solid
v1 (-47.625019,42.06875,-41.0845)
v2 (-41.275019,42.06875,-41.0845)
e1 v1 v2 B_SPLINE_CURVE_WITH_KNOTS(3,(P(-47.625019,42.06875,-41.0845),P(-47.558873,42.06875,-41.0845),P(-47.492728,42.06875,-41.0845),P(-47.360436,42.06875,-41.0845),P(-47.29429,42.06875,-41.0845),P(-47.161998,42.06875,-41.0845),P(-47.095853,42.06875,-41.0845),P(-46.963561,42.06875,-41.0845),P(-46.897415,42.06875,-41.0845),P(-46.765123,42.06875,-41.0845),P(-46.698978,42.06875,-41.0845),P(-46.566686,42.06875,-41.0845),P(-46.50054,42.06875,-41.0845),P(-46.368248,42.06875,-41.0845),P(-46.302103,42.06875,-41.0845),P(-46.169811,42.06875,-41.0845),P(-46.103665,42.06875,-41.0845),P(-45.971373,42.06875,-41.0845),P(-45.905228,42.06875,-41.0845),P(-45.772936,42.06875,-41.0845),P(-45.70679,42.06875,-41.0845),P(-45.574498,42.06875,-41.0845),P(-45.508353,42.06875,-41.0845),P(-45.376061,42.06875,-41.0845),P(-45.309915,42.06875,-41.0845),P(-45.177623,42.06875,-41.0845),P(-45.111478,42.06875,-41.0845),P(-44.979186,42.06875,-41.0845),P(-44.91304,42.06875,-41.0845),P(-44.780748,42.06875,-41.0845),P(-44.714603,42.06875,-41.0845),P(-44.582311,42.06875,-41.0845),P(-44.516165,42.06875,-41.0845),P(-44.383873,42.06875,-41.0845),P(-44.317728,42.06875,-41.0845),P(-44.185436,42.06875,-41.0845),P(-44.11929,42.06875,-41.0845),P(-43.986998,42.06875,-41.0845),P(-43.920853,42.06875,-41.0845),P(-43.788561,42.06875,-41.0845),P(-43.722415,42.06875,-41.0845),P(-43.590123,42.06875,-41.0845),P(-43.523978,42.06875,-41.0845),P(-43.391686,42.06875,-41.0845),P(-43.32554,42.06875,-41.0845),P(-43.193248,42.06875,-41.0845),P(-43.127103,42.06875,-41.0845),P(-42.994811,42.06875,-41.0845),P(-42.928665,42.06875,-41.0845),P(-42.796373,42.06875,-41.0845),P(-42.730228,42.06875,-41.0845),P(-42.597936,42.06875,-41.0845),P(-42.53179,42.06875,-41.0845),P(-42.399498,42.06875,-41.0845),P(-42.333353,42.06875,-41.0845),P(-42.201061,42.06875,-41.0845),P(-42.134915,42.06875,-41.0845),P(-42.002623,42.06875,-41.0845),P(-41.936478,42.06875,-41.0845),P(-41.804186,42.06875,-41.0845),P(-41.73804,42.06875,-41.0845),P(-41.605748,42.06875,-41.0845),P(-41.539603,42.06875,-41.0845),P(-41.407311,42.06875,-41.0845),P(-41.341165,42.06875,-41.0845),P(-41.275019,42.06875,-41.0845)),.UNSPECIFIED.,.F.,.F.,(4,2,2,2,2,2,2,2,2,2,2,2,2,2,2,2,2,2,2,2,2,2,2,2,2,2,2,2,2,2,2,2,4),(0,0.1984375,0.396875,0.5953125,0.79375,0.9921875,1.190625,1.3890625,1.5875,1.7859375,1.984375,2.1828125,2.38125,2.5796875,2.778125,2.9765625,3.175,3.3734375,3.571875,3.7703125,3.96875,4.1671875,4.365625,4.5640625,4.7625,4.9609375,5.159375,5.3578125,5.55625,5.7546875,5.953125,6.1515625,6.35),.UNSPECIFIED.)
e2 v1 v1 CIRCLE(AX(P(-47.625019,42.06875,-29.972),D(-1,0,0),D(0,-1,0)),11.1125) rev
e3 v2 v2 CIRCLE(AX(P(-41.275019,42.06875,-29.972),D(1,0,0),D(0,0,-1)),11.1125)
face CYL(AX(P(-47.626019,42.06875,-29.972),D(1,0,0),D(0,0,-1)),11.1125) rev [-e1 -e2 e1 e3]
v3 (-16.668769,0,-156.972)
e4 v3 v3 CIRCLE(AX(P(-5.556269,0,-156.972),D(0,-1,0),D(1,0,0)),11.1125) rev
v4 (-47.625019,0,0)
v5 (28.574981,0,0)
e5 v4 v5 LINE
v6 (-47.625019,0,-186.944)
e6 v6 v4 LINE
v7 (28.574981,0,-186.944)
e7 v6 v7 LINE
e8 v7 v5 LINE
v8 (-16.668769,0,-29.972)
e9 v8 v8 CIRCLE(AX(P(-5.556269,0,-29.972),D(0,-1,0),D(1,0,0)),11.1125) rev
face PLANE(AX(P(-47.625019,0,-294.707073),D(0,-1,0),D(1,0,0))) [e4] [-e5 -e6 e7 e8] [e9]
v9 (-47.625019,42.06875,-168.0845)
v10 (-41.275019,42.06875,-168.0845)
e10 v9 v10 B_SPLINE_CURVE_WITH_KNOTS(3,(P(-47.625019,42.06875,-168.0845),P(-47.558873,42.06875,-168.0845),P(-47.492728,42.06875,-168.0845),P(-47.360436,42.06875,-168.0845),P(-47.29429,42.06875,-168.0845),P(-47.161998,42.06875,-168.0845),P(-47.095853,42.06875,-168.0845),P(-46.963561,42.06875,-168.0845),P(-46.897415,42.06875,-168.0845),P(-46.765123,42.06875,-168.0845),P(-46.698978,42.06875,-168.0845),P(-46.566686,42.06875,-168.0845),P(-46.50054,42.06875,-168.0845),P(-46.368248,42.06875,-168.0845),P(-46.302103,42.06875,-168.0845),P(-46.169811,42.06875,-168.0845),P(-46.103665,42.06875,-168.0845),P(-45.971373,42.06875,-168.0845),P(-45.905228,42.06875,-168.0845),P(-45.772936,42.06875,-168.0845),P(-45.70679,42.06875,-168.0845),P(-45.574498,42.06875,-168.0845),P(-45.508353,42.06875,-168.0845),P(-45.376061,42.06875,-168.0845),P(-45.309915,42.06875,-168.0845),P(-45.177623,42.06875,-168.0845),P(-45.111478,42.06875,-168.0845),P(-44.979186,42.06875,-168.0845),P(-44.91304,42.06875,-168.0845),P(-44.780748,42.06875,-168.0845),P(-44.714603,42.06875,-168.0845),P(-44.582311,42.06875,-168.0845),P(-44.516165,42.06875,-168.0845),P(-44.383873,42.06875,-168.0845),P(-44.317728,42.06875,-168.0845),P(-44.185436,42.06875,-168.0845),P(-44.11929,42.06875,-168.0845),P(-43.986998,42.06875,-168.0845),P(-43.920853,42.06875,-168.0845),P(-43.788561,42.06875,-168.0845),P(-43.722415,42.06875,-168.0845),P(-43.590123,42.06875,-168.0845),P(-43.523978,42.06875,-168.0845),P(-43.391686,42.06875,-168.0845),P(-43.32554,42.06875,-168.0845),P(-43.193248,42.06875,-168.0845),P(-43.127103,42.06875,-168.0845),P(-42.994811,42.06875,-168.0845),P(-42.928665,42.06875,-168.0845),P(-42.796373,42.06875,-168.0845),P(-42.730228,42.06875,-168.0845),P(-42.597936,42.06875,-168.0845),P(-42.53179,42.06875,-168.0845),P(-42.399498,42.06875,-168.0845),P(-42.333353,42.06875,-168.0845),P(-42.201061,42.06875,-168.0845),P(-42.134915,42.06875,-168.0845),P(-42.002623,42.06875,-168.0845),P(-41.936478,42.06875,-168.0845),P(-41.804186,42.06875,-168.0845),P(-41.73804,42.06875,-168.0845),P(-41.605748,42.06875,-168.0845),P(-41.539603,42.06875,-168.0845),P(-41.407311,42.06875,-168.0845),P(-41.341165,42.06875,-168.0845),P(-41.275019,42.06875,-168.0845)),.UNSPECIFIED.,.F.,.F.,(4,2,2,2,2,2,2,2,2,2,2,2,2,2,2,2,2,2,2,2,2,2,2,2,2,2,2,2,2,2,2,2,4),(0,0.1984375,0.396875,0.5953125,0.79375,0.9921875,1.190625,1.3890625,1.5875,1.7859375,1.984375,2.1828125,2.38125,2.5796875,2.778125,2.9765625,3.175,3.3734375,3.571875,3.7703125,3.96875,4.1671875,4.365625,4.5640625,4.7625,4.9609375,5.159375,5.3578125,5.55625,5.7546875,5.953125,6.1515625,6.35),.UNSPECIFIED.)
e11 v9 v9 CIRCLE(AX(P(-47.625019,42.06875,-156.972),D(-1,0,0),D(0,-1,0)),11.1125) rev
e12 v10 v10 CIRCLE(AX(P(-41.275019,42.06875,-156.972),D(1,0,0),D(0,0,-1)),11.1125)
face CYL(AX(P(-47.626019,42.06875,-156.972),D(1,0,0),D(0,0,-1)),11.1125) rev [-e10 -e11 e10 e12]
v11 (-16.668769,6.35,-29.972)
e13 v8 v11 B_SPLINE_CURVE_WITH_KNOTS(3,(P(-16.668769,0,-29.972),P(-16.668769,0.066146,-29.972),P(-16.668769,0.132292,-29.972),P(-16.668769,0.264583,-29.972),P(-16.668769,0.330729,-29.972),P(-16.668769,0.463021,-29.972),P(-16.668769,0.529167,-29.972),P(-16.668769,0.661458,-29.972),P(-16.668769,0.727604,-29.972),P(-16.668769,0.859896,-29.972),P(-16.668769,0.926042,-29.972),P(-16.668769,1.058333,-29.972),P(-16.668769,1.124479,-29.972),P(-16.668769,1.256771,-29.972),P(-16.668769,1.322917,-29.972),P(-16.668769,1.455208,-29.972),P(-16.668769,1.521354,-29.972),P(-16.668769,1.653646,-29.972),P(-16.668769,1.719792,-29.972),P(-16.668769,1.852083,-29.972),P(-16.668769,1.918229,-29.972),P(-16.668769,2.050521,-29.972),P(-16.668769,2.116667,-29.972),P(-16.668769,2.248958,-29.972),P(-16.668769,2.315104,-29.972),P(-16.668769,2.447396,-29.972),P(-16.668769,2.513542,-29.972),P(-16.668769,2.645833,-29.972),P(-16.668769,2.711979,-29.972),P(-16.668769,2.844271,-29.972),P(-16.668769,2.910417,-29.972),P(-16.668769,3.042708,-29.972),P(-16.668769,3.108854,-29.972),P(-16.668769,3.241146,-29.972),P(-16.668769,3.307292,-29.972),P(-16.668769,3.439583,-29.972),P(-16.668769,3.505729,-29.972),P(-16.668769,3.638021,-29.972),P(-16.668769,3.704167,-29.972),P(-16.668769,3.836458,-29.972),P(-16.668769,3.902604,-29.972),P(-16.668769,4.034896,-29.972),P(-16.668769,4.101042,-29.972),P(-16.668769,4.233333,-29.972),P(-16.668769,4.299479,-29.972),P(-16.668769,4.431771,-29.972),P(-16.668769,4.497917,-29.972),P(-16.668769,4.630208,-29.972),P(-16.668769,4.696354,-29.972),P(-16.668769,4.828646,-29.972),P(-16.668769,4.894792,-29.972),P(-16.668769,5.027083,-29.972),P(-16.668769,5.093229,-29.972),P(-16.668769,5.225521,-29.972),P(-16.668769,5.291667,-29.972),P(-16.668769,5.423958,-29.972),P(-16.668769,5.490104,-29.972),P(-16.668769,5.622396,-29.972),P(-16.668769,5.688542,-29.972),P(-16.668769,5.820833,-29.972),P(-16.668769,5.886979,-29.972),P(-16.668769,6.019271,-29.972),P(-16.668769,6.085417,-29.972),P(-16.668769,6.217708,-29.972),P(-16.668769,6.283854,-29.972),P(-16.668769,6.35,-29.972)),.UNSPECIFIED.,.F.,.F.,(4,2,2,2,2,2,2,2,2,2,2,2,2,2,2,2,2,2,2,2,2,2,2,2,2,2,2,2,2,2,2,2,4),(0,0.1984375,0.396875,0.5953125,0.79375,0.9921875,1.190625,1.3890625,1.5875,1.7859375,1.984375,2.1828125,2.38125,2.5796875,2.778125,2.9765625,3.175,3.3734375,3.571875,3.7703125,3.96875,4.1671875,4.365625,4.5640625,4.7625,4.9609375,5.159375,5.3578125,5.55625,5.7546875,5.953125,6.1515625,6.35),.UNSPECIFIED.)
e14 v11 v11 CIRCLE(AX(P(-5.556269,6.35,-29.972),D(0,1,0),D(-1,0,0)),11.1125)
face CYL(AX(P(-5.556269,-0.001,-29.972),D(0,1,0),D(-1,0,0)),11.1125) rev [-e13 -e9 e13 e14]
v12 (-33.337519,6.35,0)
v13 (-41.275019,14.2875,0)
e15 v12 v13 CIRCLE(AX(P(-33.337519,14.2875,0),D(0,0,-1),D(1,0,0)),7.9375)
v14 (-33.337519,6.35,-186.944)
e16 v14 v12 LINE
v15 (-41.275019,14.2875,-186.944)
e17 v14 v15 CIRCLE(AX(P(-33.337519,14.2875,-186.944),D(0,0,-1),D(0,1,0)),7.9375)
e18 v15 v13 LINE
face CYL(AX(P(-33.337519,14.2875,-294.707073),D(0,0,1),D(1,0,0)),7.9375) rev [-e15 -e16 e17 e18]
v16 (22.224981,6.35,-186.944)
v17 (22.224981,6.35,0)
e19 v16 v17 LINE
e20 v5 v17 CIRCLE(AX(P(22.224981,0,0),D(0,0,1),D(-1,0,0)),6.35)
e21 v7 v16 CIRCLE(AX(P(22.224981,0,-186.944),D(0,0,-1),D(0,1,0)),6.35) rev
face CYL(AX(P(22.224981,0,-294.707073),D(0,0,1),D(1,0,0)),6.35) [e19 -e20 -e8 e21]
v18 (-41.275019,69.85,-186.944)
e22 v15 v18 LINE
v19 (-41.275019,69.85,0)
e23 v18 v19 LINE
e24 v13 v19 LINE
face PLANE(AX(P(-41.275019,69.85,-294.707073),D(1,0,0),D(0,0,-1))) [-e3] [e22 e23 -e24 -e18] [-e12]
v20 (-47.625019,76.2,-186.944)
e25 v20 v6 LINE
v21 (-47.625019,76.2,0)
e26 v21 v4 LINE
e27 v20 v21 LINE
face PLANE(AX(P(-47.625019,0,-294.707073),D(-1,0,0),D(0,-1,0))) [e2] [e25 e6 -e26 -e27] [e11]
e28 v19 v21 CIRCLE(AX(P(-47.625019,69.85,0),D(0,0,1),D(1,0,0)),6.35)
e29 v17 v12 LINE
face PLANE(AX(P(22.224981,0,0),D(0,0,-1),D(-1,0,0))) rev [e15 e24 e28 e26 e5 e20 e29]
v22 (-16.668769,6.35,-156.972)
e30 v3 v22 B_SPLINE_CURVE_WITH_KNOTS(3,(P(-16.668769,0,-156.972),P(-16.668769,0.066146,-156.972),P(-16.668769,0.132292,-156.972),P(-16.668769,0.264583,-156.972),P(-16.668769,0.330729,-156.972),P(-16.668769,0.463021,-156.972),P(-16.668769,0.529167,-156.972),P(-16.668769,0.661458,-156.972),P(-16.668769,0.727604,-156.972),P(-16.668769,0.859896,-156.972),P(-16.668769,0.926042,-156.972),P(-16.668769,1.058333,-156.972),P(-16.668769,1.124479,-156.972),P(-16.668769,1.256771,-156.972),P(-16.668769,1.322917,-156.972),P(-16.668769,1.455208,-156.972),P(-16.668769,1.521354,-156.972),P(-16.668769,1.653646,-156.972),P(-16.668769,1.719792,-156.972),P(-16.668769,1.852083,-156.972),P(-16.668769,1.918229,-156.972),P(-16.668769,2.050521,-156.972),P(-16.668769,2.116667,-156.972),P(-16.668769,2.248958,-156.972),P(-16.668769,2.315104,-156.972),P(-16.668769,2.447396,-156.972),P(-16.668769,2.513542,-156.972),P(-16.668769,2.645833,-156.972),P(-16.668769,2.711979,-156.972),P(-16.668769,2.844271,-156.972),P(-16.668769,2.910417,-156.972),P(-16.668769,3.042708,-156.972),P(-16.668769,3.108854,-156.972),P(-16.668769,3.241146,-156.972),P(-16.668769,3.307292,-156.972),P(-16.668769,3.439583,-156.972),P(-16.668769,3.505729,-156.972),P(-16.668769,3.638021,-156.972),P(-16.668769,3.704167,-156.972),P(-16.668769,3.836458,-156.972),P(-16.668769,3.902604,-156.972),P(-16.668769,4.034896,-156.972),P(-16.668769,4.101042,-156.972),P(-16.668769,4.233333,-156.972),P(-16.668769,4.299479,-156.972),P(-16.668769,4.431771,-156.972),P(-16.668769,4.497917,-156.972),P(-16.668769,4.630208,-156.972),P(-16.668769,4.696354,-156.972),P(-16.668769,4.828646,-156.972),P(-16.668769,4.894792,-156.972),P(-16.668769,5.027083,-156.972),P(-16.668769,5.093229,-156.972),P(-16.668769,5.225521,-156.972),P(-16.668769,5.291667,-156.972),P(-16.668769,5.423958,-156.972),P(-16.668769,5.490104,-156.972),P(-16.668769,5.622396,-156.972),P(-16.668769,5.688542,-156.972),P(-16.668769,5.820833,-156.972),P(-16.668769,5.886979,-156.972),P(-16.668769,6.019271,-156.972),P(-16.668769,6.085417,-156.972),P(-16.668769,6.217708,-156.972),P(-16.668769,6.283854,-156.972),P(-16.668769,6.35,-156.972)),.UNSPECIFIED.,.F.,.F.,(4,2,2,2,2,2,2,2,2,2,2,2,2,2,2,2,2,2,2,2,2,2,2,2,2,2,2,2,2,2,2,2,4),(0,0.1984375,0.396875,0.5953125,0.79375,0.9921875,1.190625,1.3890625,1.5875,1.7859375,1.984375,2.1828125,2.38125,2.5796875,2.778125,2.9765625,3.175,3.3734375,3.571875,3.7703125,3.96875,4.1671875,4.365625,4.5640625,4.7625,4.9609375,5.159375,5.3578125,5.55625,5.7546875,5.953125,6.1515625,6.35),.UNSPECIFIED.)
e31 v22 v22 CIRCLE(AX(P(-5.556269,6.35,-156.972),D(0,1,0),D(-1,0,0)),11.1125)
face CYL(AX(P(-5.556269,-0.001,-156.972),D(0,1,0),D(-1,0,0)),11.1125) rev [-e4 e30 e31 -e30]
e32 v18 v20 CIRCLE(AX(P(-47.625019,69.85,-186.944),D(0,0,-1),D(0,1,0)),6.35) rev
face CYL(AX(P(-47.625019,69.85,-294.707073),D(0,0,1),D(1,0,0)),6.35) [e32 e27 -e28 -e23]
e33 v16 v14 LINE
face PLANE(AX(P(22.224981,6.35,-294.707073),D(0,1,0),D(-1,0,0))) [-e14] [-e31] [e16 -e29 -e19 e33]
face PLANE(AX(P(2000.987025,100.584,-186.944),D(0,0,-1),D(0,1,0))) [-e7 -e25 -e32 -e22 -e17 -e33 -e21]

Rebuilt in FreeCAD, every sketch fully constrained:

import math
import FreeCAD as App
import Part
import Sketcher
Q = App.Units.Quantity

doc = App.newDocument("Part")
params = doc.addObject("Spreadsheet::Sheet", "Params")
for row, (alias, value) in enumerate([
    ("sketch1_width", "3 in"),
    ("sketch1_radius", "0.25 in"),
    ("sketch1_radius2", "0.3125 in"),
    ("pad1_length", "7.36 in"),
    ("sketch2_diameter", "0.875 in"),
    ("sketch3_diameter", "0.875 in"),
    ("sketch4_diameter", "0.875 in"),
    ("sketch5_diameter", "0.875 in"),
], start=1):
    params.set(f"A{row}", alias)
    params.set(f"B{row}", "=" + value)
    params.setAlias(f"B{row}", alias)

body = doc.addObject("PartDesign::Body", "Body")

sketch1 = body.newObject("Sketcher::SketchObject", "Sketch")
sketch1.AttachmentSupport = (doc.getObject("XY_Plane"), [""])
sketch1.MapMode = "FlatFace"
sketch1.addGeometry([
    Part.LineSegment(App.Vector(-48, 76, 0), App.Vector(-48, 0, 0)),
    Part.LineSegment(App.Vector(-48, 0, 0), App.Vector(29, 0, 0)),
    Part.ArcOfCircle(Part.Circle(App.Vector(22, 0, 0), App.Vector(0, 0, 1), 6), math.radians(0), math.radians(90)),
    Part.LineSegment(App.Vector(22, 6, 0), App.Vector(-33, 6, 0)),
    Part.ArcOfCircle(Part.Circle(App.Vector(-33, 14, 0), App.Vector(0, 0, 1), 8), math.radians(180), math.radians(270)),
    Part.LineSegment(App.Vector(-41, 14, 0), App.Vector(-41, 70, 0)),
    Part.ArcOfCircle(Part.Circle(App.Vector(-48, 70, 0), App.Vector(0, 0, 1), 6), math.radians(0), math.radians(90)),
], False)
sketch1.addConstraint([
    Sketcher.Constraint("Coincident", 0, 2, 1, 1),
    Sketcher.Constraint("Coincident", 1, 2, 2, 1),
    Sketcher.Constraint("Tangent", 2, 2, 3, 1),
    Sketcher.Constraint("Tangent", 3, 2, 4, 2),
    Sketcher.Constraint("Tangent", 4, 1, 5, 1),
    Sketcher.Constraint("Tangent", 5, 2, 6, 1),
    Sketcher.Constraint("Coincident", 6, 2, 0, 1),
    Sketcher.Constraint("Vertical", 0),
    Sketcher.Constraint("Horizontal", 1),
    Sketcher.Constraint("Horizontal", 3),
    Sketcher.Constraint("Vertical", 5),
    Sketcher.Constraint("Equal", 2, 6),
    Sketcher.Constraint("PointOnObject", 2, 3, -1),
    Sketcher.Constraint("PointOnObject", 0, 2, -1),
    Sketcher.Constraint("Vertical", 6, 3, 0, 2),
    Sketcher.Constraint("Equal", 1, 0),
    Sketcher.Constraint("DistanceX", 1, 1, 1, 2, Q("3 in")),
    Sketcher.Constraint("Radius", 2, Q("0.25 in")),
    Sketcher.Constraint("Radius", 4, Q("0.3125 in")),
    Sketcher.Constraint("DistanceX", -1, 1, 2, 3, Q("22.224981 mm")),
])
sketch1.setExpression("Constraints[16]", "Params.sketch1_width")
sketch1.setExpression("Constraints[17]", "Params.sketch1_radius")
sketch1.setExpression("Constraints[18]", "Params.sketch1_radius2")
pad1 = body.newObject("PartDesign::Pad", "Pad")
pad1.Profile = sketch1
pad1.setExpression("Length", "Params.pad1_length")
pad1.Reversed = True

sketch2 = body.newObject("Sketcher::SketchObject", "Sketch001")
sketch2.AttachmentSupport = (doc.getObject("YZ_Plane"), [""])
sketch2.MapMode = "FlatFace"
sketch2.AttachmentOffset = App.Placement(App.Vector(0, 0, -41.275019), App.Rotation())
sketch2.addGeometry(Part.Circle(App.Vector(42, -157, 0), App.Vector(0, 0, 1), 11), False)
sketch2.addConstraint([
    Sketcher.Constraint("Diameter", 0, Q("0.875 in")),
    Sketcher.Constraint("DistanceY", 0, 3, -1, 1, Q("6.18 in")),
    Sketcher.Constraint("DistanceX", -1, 1, 0, 3, Q("1.65625 in")),
])
sketch2.setExpression("Constraints[0]", "Params.sketch2_diameter")
pocket1 = body.newObject("PartDesign::Pocket", "Pocket")
pocket1.Profile = sketch2
pocket1.Type = "UpToFirst"

sketch3 = body.newObject("Sketcher::SketchObject", "Sketch002")
sketch3.AttachmentSupport = (doc.getObject("YZ_Plane"), [""])
sketch3.MapMode = "FlatFace"
sketch3.AttachmentOffset = App.Placement(App.Vector(0, 0, -41.275019), App.Rotation())
sketch3.addGeometry(Part.Circle(App.Vector(42, -30, 0), App.Vector(0, 0, 1), 11), False)
sketch3.addConstraint([
    Sketcher.Constraint("Diameter", 0, Q("0.875 in")),
    Sketcher.Constraint("DistanceY", 0, 3, -1, 1, Q("1.18 in")),
    Sketcher.Constraint("DistanceX", -1, 1, 0, 3, Q("1.65625 in")),
])
sketch3.setExpression("Constraints[0]", "Params.sketch3_diameter")
pocket2 = body.newObject("PartDesign::Pocket", "Pocket001")
pocket2.Profile = sketch3
pocket2.Type = "UpToFirst"

sketch4 = body.newObject("Sketcher::SketchObject", "Sketch003")
sketch4.AttachmentSupport = (doc.getObject("XZ_Plane"), [""])
sketch4.MapMode = "FlatFace"
sketch4.AttachmentOffset = App.Placement(App.Vector(0, 0, -0.25 * 25.4), App.Rotation())
sketch4.addGeometry(Part.Circle(App.Vector(-6, -157, 0), App.Vector(0, 0, 1), 11), False)
sketch4.addConstraint([
    Sketcher.Constraint("Diameter", 0, Q("0.875 in")),
    Sketcher.Constraint("DistanceY", 0, 3, -1, 1, Q("6.18 in")),
    Sketcher.Constraint("DistanceX", 0, 3, -1, 1, Q("5.556269 mm")),
])
sketch4.setExpression("Constraints[0]", "Params.sketch4_diameter")
pocket3 = body.newObject("PartDesign::Pocket", "Pocket002")
pocket3.Profile = sketch4
pocket3.Type = "UpToFirst"
pocket3.Reversed = True

sketch5 = body.newObject("Sketcher::SketchObject", "Sketch004")
sketch5.AttachmentSupport = (doc.getObject("XZ_Plane"), [""])
sketch5.MapMode = "FlatFace"
sketch5.AttachmentOffset = App.Placement(App.Vector(0, 0, -0.25 * 25.4), App.Rotation())
sketch5.addGeometry(Part.Circle(App.Vector(-6, -30, 0), App.Vector(0, 0, 1), 11), False)
sketch5.addConstraint([
    Sketcher.Constraint("Diameter", 0, Q("0.875 in")),
    Sketcher.Constraint("DistanceY", 0, 3, -1, 1, Q("1.18 in")),
    Sketcher.Constraint("DistanceX", 0, 3, -1, 1, Q("5.556269 mm")),
])
sketch5.setExpression("Constraints[0]", "Params.sketch5_diameter")
pocket4 = body.newObject("PartDesign::Pocket", "Pocket003")
pocket4.Profile = sketch5
pocket4.Type = "UpToFirst"
pocket4.Reversed = True

doc.recompute()
